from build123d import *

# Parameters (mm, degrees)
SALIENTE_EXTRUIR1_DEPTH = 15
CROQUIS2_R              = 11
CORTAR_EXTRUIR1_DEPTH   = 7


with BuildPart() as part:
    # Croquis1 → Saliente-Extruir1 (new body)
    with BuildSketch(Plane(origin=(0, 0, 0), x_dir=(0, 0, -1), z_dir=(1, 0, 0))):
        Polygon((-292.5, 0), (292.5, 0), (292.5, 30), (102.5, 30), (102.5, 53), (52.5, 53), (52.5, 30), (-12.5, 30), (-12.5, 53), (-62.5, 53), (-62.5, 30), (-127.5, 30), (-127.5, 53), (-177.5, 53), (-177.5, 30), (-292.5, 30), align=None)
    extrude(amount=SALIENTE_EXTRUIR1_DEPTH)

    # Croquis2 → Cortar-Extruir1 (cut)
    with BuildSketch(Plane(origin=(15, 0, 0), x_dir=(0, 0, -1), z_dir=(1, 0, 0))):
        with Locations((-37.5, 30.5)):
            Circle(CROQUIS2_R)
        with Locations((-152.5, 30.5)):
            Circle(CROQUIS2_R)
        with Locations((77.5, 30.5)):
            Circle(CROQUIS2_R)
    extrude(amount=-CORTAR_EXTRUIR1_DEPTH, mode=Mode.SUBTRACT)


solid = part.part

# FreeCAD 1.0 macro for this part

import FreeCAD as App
import Part
import Sketcher
from FreeCAD import Vector

doc = App.newDocument("Part")
body = doc.addObject("PartDesign::Body", "Body")

# Sketch on YZ plane
sketch1 = body.newObject("Sketcher::SketchObject", "Sketch")
sketch1.AttachmentSupport = (doc.getObject("YZ_Plane"), [""])
sketch1.MapMode = "FlatFace"
sketch1.addGeometry([
    Part.LineSegment(Vector(0, 292, 0), Vector(0, -292, 0)),  # 0
    Part.LineSegment(Vector(0, -292, 0), Vector(30, -292, 0)),  # 1
    Part.LineSegment(Vector(30, -292, 0), Vector(30, -102, 0)),  # 2
    Part.LineSegment(Vector(30, -102, 0), Vector(53, -102, 0)),  # 3
    Part.LineSegment(Vector(53, -102, 0), Vector(53, -52, 0)),  # 4
    Part.LineSegment(Vector(53, -52, 0), Vector(30, -52, 0)),  # 5
    Part.LineSegment(Vector(30, -52, 0), Vector(30, 12, 0)),  # 6
    Part.LineSegment(Vector(30, 12, 0), Vector(53, 12, 0)),  # 7
    Part.LineSegment(Vector(53, 12, 0), Vector(53, 62, 0)),  # 8
    Part.LineSegment(Vector(53, 62, 0), Vector(30, 62, 0)),  # 9
    Part.LineSegment(Vector(30, 62, 0), Vector(30, 128, 0)),  # 10
    Part.LineSegment(Vector(30, 128, 0), Vector(53, 128, 0)),  # 11
    Part.LineSegment(Vector(53, 128, 0), Vector(53, 178, 0)),  # 12
    Part.LineSegment(Vector(53, 178, 0), Vector(30, 178, 0)),  # 13
    Part.LineSegment(Vector(30, 178, 0), Vector(30, 292, 0)),  # 14
    Part.LineSegment(Vector(30, 292, 0), Vector(0, 292, 0)),  # 15
], False)
sketch1.addConstraint([
    Sketcher.Constraint("Coincident", 0, 2, 1, 1),
    Sketcher.Constraint("Coincident", 1, 2, 2, 1),
    Sketcher.Constraint("Coincident", 2, 2, 3, 1),
    Sketcher.Constraint("Coincident", 3, 2, 4, 1),
    Sketcher.Constraint("Coincident", 4, 2, 5, 1),
    Sketcher.Constraint("Coincident", 5, 2, 6, 1),
    Sketcher.Constraint("Coincident", 6, 2, 7, 1),
    Sketcher.Constraint("Coincident", 7, 2, 8, 1),
    Sketcher.Constraint("Coincident", 8, 2, 9, 1),
    Sketcher.Constraint("Coincident", 9, 2, 10, 1),
    Sketcher.Constraint("Coincident", 10, 2, 11, 1),
    Sketcher.Constraint("Coincident", 11, 2, 12, 1),
    Sketcher.Constraint("Coincident", 12, 2, 13, 1),
    Sketcher.Constraint("Coincident", 13, 2, 14, 1),
    Sketcher.Constraint("Coincident", 14, 2, 15, 1),
    Sketcher.Constraint("Coincident", 15, 2, 0, 1),
    Sketcher.Constraint("Vertical", 0),
    Sketcher.Constraint("Horizontal", 1),
    Sketcher.Constraint("Vertical", 2),
    Sketcher.Constraint("Horizontal", 3),
    Sketcher.Constraint("Vertical", 4),
    Sketcher.Constraint("Horizontal", 5),
    Sketcher.Constraint("Vertical", 6),
    Sketcher.Constraint("Horizontal", 7),
    Sketcher.Constraint("Vertical", 8),
    Sketcher.Constraint("Horizontal", 9),
    Sketcher.Constraint("Vertical", 10),
    Sketcher.Constraint("Horizontal", 11),
    Sketcher.Constraint("Vertical", 12),
    Sketcher.Constraint("Horizontal", 13),
    Sketcher.Constraint("Vertical", 14),
    Sketcher.Constraint("Horizontal", 15),
    Sketcher.Constraint("Symmetric", 0, 2, 15, 2, -1, 1),
    Sketcher.Constraint("Vertical", 2, 2, 5, 2),
    Sketcher.Constraint("Vertical", 4, 2, 7, 2),
    Sketcher.Constraint("Vertical", 6, 2, 9, 2),
    Sketcher.Constraint("Vertical", 8, 2, 11, 2),
    Sketcher.Constraint("Vertical", 10, 2, 13, 2),
    Sketcher.Constraint("Equal", 4, 8),
    Sketcher.Constraint("Equal", 6, 10),
    Sketcher.Constraint("Equal", 8, 12),
    Sketcher.Constraint("DistanceX", 1, 1, 1, 2, 30.0),
    Sketcher.Constraint("DistanceX", 3, 1, 3, 2, 23.0),
    Sketcher.Constraint("DistanceY", 0, 2, 0, 1, 585.0),
    Sketcher.Constraint("DistanceY", 2, 1, 2, 2, 190.0),
    Sketcher.Constraint("DistanceY", 4, 1, 4, 2, 50.0),
    Sketcher.Constraint("DistanceY", 6, 1, 6, 2, 65.0),
])
pad1 = body.newObject("PartDesign::Pad", "Pad")
pad1.Profile = sketch1
pad1.Length = 15

# Sketch on YZ plane
sketch2 = body.newObject("Sketcher::SketchObject", "Sketch001")
sketch2.AttachmentSupport = (doc.getObject("YZ_Plane"), [""])
sketch2.MapMode = "FlatFace"
sketch2.AttachmentOffset = App.Placement(Vector(0, 0, 15), App.Rotation())
sketch2.addGeometry([
    Part.Circle(Vector(30, 38, 0), Vector(0, 0, 1), 11),
    Part.Circle(Vector(30, 152, 0), Vector(0, 0, 1), 11),
    Part.Circle(Vector(30, -78, 0), Vector(0, 0, 1), 11),
], False)
sketch2.addConstraint([
    Sketcher.Constraint("Equal", 0, 1),
    Sketcher.Constraint("Equal", 1, 2),
    Sketcher.Constraint("Vertical", 0, 3, 1, 3),
    Sketcher.Constraint("Vertical", 1, 3, 2, 3),
    Sketcher.Constraint("Diameter", 0, 22.0),
    Sketcher.Constraint("DistanceY", 0, 3, 1, 3, 115.0),
    Sketcher.Constraint("DistanceY", 2, 3, 0, 3, 115.0),
    Sketcher.Constraint("DistanceX", -1, 1, 0, 3, 30.5),
    Sketcher.Constraint("DistanceY", -1, 1, 0, 3, 37.5),
])
pocket1 = body.newObject("PartDesign::Pocket", "Pocket")
pocket1.Profile = sketch2
pocket1.Length = 7

doc.recompute()
